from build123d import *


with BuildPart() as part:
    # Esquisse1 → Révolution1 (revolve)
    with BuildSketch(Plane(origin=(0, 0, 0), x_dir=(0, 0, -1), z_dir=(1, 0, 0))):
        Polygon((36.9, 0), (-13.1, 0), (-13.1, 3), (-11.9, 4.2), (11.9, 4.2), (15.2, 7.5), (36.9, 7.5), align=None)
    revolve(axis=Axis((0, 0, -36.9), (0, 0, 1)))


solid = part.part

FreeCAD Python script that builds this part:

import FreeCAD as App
import Part
import Sketcher

V = App.Vector
Q = App.Units.Quantity


def add_polygon(sketch, points):
    """Adds a closed chain of lines whose ends are joined by coincident constraints."""
    first, n = sketch.GeometryCount, len(points)
    for a, b in zip(points, points[1:] + points[:1]):
        sketch.addGeometry(Part.LineSegment(App.Vector(*a, 0), App.Vector(*b, 0)), False)
    for i in range(n):
        sketch.addConstraint(Sketcher.Constraint("Coincident", first + i, 2, first + (i + 1) % n, 1))

doc = App.newDocument("Part")
body = doc.addObject("PartDesign::Body", "Body")

# Sketch on YZ plane
sketch1 = doc.addObject("Sketcher::SketchObject", "Sketch")
body.addObject(sketch1)
sketch1.AttachmentSupport = (doc.YZ_Plane, [""])
sketch1.MapMode = "FlatFace"
add_polygon(sketch1, [(0, 13.1), (0, -36.9), (7.5, -36.9), (7.5, -15.2), (4.2, -11.9), (4.2, 11.9), (3, 13.1)])  # lines 0-6
sketch1.addConstraint(Sketcher.Constraint("Vertical", 0))
sketch1.addConstraint(Sketcher.Constraint("Horizontal", 1))
sketch1.addConstraint(Sketcher.Constraint("Vertical", 2))
sketch1.addConstraint(Sketcher.Constraint("Vertical", 4))
sketch1.addConstraint(Sketcher.Constraint("Horizontal", 6))
sketch1.addConstraint(Sketcher.Constraint("PointOnObject", 0, 2, -2))
sketch1.addConstraint(Sketcher.Constraint("Parallel", 3, 5))
sketch1.addConstraint(Sketcher.Constraint("DistanceX", 6, 2, 6, 1, Q("3 mm")))
sketch1.addConstraint(Sketcher.Constraint("DistanceY", 0, 2, 0, 1, Q("50 mm")))
sketch1.addConstraint(Sketcher.Constraint("Angle", 3, Q("135 deg")))
sketch1.addConstraint(Sketcher.Constraint("DistanceX", 1, 1, 1, 2, Q("7.5 mm")))
sketch1.addConstraint(Sketcher.Constraint("DistanceY", 2, 1, 2, 2, Q("21.7 mm")))
sketch1.addConstraint(Sketcher.Constraint("DistanceY", 1, 2, 3, 2, Q("25 mm")))
sketch1.addConstraint(Sketcher.Constraint("DistanceY", 0, 2, -1, 1, Q("36.9 mm")))
revolution = doc.addObject("PartDesign::Revolution", "Revolution")
body.addObject(revolution)
revolution.Profile = sketch1
revolution.ReferenceAxis = (sketch1, ["V_Axis"])
revolution.Angle = 360

doc.recompute()
